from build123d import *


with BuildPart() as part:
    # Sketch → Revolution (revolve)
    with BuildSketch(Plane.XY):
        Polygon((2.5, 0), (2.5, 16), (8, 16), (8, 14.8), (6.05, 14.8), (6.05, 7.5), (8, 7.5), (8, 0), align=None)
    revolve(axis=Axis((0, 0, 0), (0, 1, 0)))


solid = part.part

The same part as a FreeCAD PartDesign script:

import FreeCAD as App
import Part
import Sketcher

V = App.Vector
Q = App.Units.Quantity


def add_polygon(sketch, points):
    """Adds a closed chain of lines whose ends are joined by coincident constraints."""
    first, n = sketch.GeometryCount, len(points)
    for a, b in zip(points, points[1:] + points[:1]):
        sketch.addGeometry(Part.LineSegment(App.Vector(*a, 0), App.Vector(*b, 0)), False)
    for i in range(n):
        sketch.addConstraint(Sketcher.Constraint("Coincident", first + i, 2, first + (i + 1) % n, 1))

doc = App.newDocument("Part")
params = doc.addObject("Spreadsheet::Sheet", "Params")
for row, (alias, value) in enumerate([
    ("sketch1_height", "16 mm"),
    ("sketch1_width", "5.5 mm"),
    ("sketch1_height2", "7.5 mm"),
    ("sketch1_height3", "7.3 mm"),
    ("sketch1_width2", "1.95 mm"),
    ("revolution_angle", "360 deg"),
], start=1):
    params.set(f"A{row}", alias)
    params.set(f"B{row}", "=" + value)
    params.setAlias(f"B{row}", alias)

body = doc.addObject("PartDesign::Body", "Body")

# Sketch on XY plane
sketch1 = body.newObject("Sketcher::SketchObject", "Sketch")
sketch1.AttachmentSupport = (doc.getObject("XY_Plane"), [""])
sketch1.MapMode = "FlatFace"
add_polygon(sketch1, [(2.5, 16), (2.5, 0), (8, 0), (8, 7.5), (6, 7.5), (6, 14.8), (8, 14.8), (8, 16)])  # lines 0-7
sketch1.addConstraint(Sketcher.Constraint("Vertical", 0))
sketch1.addConstraint(Sketcher.Constraint("Horizontal", 1))
sketch1.addConstraint(Sketcher.Constraint("Vertical", 2))
sketch1.addConstraint(Sketcher.Constraint("Horizontal", 3))
sketch1.addConstraint(Sketcher.Constraint("Vertical", 4))
sketch1.addConstraint(Sketcher.Constraint("Horizontal", 5))
sketch1.addConstraint(Sketcher.Constraint("Vertical", 6))
sketch1.addConstraint(Sketcher.Constraint("Horizontal", 7))
sketch1.addConstraint(Sketcher.Constraint("PointOnObject", 0, 2, -1))
sketch1.addConstraint(Sketcher.Constraint("Vertical", 2, 2, 5, 2))
sketch1.addConstraint(Sketcher.Constraint("DistanceY", 0, 2, 0, 1, Q("16 mm")))
sketch1.addConstraint(Sketcher.Constraint("DistanceX", 1, 1, 1, 2, Q("5.5 mm")))
sketch1.addConstraint(Sketcher.Constraint("DistanceY", 2, 1, 2, 2, Q("7.5 mm")))
sketch1.addConstraint(Sketcher.Constraint("DistanceY", 4, 1, 4, 2, Q("7.3 mm")))
sketch1.addConstraint(Sketcher.Constraint("DistanceX", -1, 1, 1, 2, Q("8 mm")))
sketch1.addConstraint(Sketcher.Constraint("DistanceX", 3, 2, 3, 1, Q("1.95 mm")))
sketch1.setExpression("Constraints[18]", "Params.sketch1_height")
sketch1.setExpression("Constraints[19]", "Params.sketch1_width")
sketch1.setExpression("Constraints[20]", "Params.sketch1_height2")
sketch1.setExpression("Constraints[21]", "Params.sketch1_height3")
sketch1.setExpression("Constraints[23]", "Params.sketch1_width2")
revolution = body.newObject("PartDesign::Revolution", "Revolution")
revolution.Profile = sketch1
revolution.ReferenceAxis = (sketch1, ["V_Axis"])
revolution.setExpression("Angle", "Params.revolution_angle")

doc.recompute()
